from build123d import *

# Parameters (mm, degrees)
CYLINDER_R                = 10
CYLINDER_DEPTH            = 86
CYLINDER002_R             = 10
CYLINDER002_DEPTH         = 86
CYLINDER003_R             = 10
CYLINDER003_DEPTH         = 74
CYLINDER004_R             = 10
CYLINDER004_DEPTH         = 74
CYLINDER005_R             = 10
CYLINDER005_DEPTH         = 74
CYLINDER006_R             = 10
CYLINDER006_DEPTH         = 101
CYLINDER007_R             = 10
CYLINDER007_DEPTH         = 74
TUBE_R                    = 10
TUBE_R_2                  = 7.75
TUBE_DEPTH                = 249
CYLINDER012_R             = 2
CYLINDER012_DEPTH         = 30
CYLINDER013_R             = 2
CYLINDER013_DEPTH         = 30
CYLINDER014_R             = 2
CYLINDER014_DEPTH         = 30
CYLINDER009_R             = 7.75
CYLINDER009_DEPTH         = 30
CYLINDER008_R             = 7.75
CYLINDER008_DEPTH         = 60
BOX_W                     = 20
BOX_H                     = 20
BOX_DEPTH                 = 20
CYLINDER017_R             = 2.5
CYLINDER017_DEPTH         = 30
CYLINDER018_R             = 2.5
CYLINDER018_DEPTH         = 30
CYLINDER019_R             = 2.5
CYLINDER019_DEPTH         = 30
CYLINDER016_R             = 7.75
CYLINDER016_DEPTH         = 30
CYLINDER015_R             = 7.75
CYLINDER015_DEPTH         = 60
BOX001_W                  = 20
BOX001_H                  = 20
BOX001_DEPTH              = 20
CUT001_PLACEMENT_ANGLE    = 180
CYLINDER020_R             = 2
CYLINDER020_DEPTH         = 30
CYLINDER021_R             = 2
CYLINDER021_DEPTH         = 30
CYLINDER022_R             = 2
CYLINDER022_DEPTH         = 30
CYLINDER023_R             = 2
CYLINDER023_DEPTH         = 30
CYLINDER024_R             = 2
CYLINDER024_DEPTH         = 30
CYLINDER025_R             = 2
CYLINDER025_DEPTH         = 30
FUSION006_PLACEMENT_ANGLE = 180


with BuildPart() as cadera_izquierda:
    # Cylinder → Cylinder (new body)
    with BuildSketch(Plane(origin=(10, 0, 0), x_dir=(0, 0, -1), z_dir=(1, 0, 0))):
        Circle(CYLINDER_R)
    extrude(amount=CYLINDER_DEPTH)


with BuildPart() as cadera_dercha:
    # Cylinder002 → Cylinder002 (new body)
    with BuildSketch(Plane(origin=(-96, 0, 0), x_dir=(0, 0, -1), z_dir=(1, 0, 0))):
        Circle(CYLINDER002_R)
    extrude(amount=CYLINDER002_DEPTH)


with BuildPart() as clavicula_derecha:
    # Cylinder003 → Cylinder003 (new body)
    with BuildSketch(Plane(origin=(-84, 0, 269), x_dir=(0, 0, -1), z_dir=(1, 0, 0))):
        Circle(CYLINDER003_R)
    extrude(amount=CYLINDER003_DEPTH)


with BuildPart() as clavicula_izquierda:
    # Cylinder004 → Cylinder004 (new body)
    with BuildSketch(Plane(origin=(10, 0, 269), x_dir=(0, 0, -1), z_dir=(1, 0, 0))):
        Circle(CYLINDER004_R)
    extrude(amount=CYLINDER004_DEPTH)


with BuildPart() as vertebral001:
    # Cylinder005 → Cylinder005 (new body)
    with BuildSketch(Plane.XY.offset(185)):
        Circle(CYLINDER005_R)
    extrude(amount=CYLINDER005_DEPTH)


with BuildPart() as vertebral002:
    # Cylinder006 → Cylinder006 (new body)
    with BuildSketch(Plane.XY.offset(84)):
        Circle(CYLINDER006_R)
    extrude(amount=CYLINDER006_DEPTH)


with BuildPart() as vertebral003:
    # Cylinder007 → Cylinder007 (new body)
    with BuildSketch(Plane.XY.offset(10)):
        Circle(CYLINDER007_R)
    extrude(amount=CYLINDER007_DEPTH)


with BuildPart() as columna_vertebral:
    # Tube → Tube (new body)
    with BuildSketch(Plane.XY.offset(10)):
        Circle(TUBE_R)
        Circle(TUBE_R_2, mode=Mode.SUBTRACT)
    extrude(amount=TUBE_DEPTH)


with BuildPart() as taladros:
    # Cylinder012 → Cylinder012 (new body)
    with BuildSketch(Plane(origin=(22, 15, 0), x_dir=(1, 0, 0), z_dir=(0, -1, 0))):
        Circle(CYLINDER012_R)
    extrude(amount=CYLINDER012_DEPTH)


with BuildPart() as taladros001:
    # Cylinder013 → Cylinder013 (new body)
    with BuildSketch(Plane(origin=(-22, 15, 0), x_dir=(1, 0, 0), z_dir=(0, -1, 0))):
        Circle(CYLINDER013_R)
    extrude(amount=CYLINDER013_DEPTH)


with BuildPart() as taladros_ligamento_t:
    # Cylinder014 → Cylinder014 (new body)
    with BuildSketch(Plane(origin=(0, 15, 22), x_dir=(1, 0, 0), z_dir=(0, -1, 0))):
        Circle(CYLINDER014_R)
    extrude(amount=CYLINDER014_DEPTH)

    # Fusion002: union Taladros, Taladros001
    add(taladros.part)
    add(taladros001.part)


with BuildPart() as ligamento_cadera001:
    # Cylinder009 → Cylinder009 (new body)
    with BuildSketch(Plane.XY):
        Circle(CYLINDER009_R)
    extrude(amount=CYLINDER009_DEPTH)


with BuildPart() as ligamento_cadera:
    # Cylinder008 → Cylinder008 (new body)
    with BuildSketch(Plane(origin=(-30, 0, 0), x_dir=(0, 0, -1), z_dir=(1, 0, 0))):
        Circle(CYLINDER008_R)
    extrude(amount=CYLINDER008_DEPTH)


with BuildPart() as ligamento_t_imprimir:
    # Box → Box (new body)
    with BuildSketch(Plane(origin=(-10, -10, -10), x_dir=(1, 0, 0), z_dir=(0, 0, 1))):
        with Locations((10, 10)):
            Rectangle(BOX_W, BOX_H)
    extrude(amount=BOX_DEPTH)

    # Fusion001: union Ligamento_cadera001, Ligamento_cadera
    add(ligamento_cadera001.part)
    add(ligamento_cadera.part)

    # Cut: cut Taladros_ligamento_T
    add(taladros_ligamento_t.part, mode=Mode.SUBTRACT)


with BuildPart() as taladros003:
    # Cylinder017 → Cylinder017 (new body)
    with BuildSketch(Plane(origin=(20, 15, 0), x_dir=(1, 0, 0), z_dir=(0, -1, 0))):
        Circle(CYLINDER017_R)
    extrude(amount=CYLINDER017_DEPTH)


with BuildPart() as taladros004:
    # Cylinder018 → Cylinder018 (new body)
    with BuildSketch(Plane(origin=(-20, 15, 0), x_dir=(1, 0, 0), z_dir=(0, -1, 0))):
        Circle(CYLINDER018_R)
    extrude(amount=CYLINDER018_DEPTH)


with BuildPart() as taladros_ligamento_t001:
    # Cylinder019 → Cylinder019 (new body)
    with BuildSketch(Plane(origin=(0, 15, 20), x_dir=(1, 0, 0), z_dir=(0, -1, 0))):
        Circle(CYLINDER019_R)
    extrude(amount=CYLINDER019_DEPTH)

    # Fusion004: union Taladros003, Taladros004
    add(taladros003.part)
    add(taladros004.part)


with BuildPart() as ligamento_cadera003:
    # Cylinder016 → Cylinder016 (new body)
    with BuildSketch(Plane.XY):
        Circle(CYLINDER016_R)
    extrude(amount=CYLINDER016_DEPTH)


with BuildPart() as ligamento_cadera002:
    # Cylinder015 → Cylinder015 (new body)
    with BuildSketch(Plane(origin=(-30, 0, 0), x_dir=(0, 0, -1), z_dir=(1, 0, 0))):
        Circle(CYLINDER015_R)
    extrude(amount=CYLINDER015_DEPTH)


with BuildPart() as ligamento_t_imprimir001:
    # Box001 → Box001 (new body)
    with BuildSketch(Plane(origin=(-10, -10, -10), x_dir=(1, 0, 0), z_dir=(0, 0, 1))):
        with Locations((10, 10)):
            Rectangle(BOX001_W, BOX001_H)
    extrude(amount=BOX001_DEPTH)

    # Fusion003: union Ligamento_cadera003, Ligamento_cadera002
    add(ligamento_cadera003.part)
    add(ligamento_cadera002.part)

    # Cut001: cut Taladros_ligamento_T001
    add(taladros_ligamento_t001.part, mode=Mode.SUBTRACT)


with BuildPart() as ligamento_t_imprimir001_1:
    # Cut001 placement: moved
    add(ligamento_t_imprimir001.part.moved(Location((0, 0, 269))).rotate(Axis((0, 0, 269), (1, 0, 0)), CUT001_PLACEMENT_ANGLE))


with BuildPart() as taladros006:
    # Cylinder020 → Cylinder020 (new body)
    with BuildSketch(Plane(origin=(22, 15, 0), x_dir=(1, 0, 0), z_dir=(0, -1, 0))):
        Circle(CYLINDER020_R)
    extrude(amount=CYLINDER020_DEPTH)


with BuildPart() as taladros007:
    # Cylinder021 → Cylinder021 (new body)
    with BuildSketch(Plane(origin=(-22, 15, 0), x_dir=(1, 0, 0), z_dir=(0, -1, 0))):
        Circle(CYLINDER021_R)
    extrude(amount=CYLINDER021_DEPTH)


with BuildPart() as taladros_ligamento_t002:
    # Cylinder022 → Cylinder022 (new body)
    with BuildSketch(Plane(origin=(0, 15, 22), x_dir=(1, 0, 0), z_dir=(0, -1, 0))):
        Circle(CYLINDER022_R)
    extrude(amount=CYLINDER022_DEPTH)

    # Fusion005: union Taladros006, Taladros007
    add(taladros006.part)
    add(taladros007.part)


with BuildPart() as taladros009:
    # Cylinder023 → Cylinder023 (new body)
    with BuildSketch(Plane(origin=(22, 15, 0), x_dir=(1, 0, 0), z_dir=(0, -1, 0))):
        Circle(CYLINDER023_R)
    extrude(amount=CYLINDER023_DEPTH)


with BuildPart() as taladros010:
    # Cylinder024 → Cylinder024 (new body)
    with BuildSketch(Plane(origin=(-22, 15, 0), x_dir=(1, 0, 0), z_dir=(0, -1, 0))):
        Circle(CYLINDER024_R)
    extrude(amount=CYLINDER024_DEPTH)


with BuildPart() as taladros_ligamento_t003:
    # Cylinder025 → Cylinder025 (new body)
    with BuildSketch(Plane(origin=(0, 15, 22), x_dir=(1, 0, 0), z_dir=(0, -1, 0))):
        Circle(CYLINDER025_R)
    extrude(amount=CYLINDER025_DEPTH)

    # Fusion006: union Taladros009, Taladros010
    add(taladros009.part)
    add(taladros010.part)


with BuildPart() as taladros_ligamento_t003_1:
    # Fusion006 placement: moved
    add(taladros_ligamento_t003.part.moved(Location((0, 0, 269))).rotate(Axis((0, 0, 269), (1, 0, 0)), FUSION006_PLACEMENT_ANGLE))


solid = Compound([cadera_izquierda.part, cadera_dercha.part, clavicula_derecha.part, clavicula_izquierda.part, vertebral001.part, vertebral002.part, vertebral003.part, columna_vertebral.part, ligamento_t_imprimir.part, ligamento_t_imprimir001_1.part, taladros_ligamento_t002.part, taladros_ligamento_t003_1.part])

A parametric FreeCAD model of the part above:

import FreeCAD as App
import Part
import Sketcher

V = App.Vector
Q = App.Units.Quantity

doc = App.newDocument("Part")
body = doc.addObject("PartDesign::Body", "Body")

# Sketch on YZ plane
sketch1 = body.newObject("Sketcher::SketchObject", "Sketch")
sketch1.AttachmentSupport = (doc.getObject("YZ_Plane"), [""])
sketch1.MapMode = "FlatFace"
sketch1.AttachmentOffset = App.Placement(V(0, 0, 10), App.Rotation())
sketch1.addGeometry(Part.Circle(V(0, 0, 0), V(0, 0, 1), 10), False)
sketch1.addConstraint(Sketcher.Constraint("Coincident", 0, 3, -1, 1))
sketch1.addConstraint(Sketcher.Constraint("Diameter", 0, Q("20 mm")))
pad1 = body.newObject("PartDesign::Pad", "Pad")
pad1.Profile = sketch1
pad1.Length = 86
body2 = doc.addObject("PartDesign::Body", "Body001")

# Sketch on YZ plane
sketch2 = body2.newObject("Sketcher::SketchObject", "Sketch001")
sketch2.AttachmentSupport = (doc.getObject("YZ_Plane001"), [""])
sketch2.MapMode = "FlatFace"
sketch2.AttachmentOffset = App.Placement(V(0, 0, -96), App.Rotation())
sketch2.addGeometry(Part.Circle(V(0, 0, 0), V(0, 0, 1), 10), False)
sketch2.addConstraint(Sketcher.Constraint("Coincident", 0, 3, -1, 1))
sketch2.addConstraint(Sketcher.Constraint("Diameter", 0, Q("20 mm")))
pad2 = body2.newObject("PartDesign::Pad", "Pad001")
pad2.Profile = sketch2
pad2.Length = 86
body3 = doc.addObject("PartDesign::Body", "Body002")

# Sketch on YZ plane
sketch3 = body3.newObject("Sketcher::SketchObject", "Sketch002")
sketch3.AttachmentSupport = (doc.getObject("YZ_Plane002"), [""])
sketch3.MapMode = "FlatFace"
sketch3.AttachmentOffset = App.Placement(V(0, 0, -84), App.Rotation())
sketch3.addGeometry(Part.Circle(V(0, 269, 0), V(0, 0, 1), 10), False)
sketch3.addConstraint(Sketcher.Constraint("PointOnObject", 0, 3, -2))
sketch3.addConstraint(Sketcher.Constraint("Diameter", 0, Q("20 mm")))
sketch3.addConstraint(Sketcher.Constraint("DistanceY", -1, 1, 0, 3, Q("269 mm")))
pad3 = body3.newObject("PartDesign::Pad", "Pad002")
pad3.Profile = sketch3
pad3.Length = 74
body4 = doc.addObject("PartDesign::Body", "Body003")

# Sketch on YZ plane
sketch4 = body4.newObject("Sketcher::SketchObject", "Sketch003")
sketch4.AttachmentSupport = (doc.getObject("YZ_Plane003"), [""])
sketch4.MapMode = "FlatFace"
sketch4.AttachmentOffset = App.Placement(V(0, 0, 10), App.Rotation())
sketch4.addGeometry(Part.Circle(V(0, 269, 0), V(0, 0, 1), 10), False)
sketch4.addConstraint(Sketcher.Constraint("PointOnObject", 0, 3, -2))
sketch4.addConstraint(Sketcher.Constraint("Diameter", 0, Q("20 mm")))
sketch4.addConstraint(Sketcher.Constraint("DistanceY", -1, 1, 0, 3, Q("269 mm")))
pad4 = body4.newObject("PartDesign::Pad", "Pad003")
pad4.Profile = sketch4
pad4.Length = 74
body5 = doc.addObject("PartDesign::Body", "Body004")

# Sketch on XY plane
sketch5 = body5.newObject("Sketcher::SketchObject", "Sketch004")
sketch5.AttachmentSupport = (doc.getObject("XY_Plane004"), [""])
sketch5.MapMode = "FlatFace"
sketch5.AttachmentOffset = App.Placement(V(0, 0, 185), App.Rotation())
sketch5.addGeometry(Part.Circle(V(0, 0, 0), V(0, 0, 1), 10), False)
sketch5.addConstraint(Sketcher.Constraint("Coincident", 0, 3, -1, 1))
sketch5.addConstraint(Sketcher.Constraint("Diameter", 0, Q("20 mm")))
pad5 = body5.newObject("PartDesign::Pad", "Pad004")
pad5.Profile = sketch5
pad5.Length = 74
body6 = doc.addObject("PartDesign::Body", "Body005")

# Sketch on XY plane
sketch6 = body6.newObject("Sketcher::SketchObject", "Sketch005")
sketch6.AttachmentSupport = (doc.getObject("XY_Plane005"), [""])
sketch6.MapMode = "FlatFace"
sketch6.AttachmentOffset = App.Placement(V(0, 0, 84), App.Rotation())
sketch6.addGeometry(Part.Circle(V(0, 0, 0), V(0, 0, 1), 10), False)
sketch6.addConstraint(Sketcher.Constraint("Coincident", 0, 3, -1, 1))
sketch6.addConstraint(Sketcher.Constraint("Diameter", 0, Q("20 mm")))
pad6 = body6.newObject("PartDesign::Pad", "Pad005")
pad6.Profile = sketch6
pad6.Length = 101
body7 = doc.addObject("PartDesign::Body", "Body006")

# Sketch on XY plane
sketch7 = body7.newObject("Sketcher::SketchObject", "Sketch006")
sketch7.AttachmentSupport = (doc.getObject("XY_Plane006"), [""])
sketch7.MapMode = "FlatFace"
sketch7.AttachmentOffset = App.Placement(V(0, 0, 10), App.Rotation())
sketch7.addGeometry(Part.Circle(V(0, 0, 0), V(0, 0, 1), 10), False)
sketch7.addConstraint(Sketcher.Constraint("Coincident", 0, 3, -1, 1))
sketch7.addConstraint(Sketcher.Constraint("Diameter", 0, Q("20 mm")))
pad7 = body7.newObject("PartDesign::Pad", "Pad006")
pad7.Profile = sketch7
pad7.Length = 74
body8 = doc.addObject("PartDesign::Body", "Body007")

# Sketch on XY plane
sketch8 = body8.newObject("Sketcher::SketchObject", "Sketch007")
sketch8.AttachmentSupport = (doc.getObject("XY_Plane007"), [""])
sketch8.MapMode = "FlatFace"
sketch8.AttachmentOffset = App.Placement(V(0, 0, 10), App.Rotation())
sketch8.addGeometry(Part.Circle(V(0, 0, 0), V(0, 0, 1), 10), False)
sketch8.addGeometry(Part.Circle(V(0, 0, 0), V(0, 0, 1), 8), False)
sketch8.addConstraint(Sketcher.Constraint("Coincident", 0, 3, -1, 1))
sketch8.addConstraint(Sketcher.Constraint("Coincident", 1, 3, -1, 1))
sketch8.addConstraint(Sketcher.Constraint("Diameter", 0, Q("20 mm")))
sketch8.addConstraint(Sketcher.Constraint("Diameter", 1, Q("15.5 mm")))
pad8 = body8.newObject("PartDesign::Pad", "Pad007")
pad8.Profile = sketch8
pad8.Length = 249
body9 = doc.addObject("PartDesign::Body", "Body008")

# Sketch on XZ plane
sketch9 = body9.newObject("Sketcher::SketchObject", "Sketch008")
sketch9.AttachmentSupport = (doc.getObject("XZ_Plane008"), [""])
sketch9.MapMode = "FlatFace"
sketch9.AttachmentOffset = App.Placement(V(0, 0, -15), App.Rotation())
sketch9.addGeometry(Part.Circle(V(22, 0, 0), V(0, 0, 1), 2), False)
sketch9.addConstraint(Sketcher.Constraint("PointOnObject", 0, 3, -1))
sketch9.addConstraint(Sketcher.Constraint("Diameter", 0, Q("4 mm")))
sketch9.addConstraint(Sketcher.Constraint("DistanceX", -1, 1, 0, 3, Q("22 mm")))
pad9 = body9.newObject("PartDesign::Pad", "Pad008")
pad9.Profile = sketch9
pad9.Length = 30
body10 = doc.addObject("PartDesign::Body", "Body009")

# Sketch on XZ plane
sketch10 = body10.newObject("Sketcher::SketchObject", "Sketch009")
sketch10.AttachmentSupport = (doc.getObject("XZ_Plane009"), [""])
sketch10.MapMode = "FlatFace"
sketch10.AttachmentOffset = App.Placement(V(0, 0, -15), App.Rotation())
sketch10.addGeometry(Part.Circle(V(-22, 0, 0), V(0, 0, 1), 2), False)
sketch10.addConstraint(Sketcher.Constraint("PointOnObject", 0, 3, -1))
sketch10.addConstraint(Sketcher.Constraint("Diameter", 0, Q("4 mm")))
sketch10.addConstraint(Sketcher.Constraint("DistanceX", 0, 3, -1, 1, Q("22 mm")))
pad10 = body10.newObject("PartDesign::Pad", "Pad009")
pad10.Profile = sketch10
pad10.Length = 30
body11 = doc.addObject("PartDesign::Body", "Body010")
body11.AllowCompound = True

# Sketch on XZ plane
sketch11 = body11.newObject("Sketcher::SketchObject", "Sketch010")
sketch11.AttachmentSupport = (doc.getObject("XZ_Plane010"), [""])
sketch11.MapMode = "FlatFace"
sketch11.AttachmentOffset = App.Placement(V(0, 0, -15), App.Rotation())
sketch11.addGeometry(Part.Circle(V(0, 22, 0), V(0, 0, 1), 2), False)
sketch11.addConstraint(Sketcher.Constraint("PointOnObject", 0, 3, -2))
sketch11.addConstraint(Sketcher.Constraint("Diameter", 0, Q("4 mm")))
sketch11.addConstraint(Sketcher.Constraint("DistanceY", -1, 1, 0, 3, Q("22 mm")))
pad11 = body11.newObject("PartDesign::Pad", "Pad010")
pad11.Profile = sketch11
pad11.Length = 30
doc.recompute()

boolean = body11.newObject("PartDesign::Boolean", "Boolean")
boolean.Type = "Fuse"
boolean.addObjects([body9])
doc.recompute()

boolean2 = body11.newObject("PartDesign::Boolean", "Boolean001")
boolean2.Type = "Fuse"
boolean2.addObjects([body10])
body12 = doc.addObject("PartDesign::Body", "Body011")

# Sketch on XY plane
sketch12 = body12.newObject("Sketcher::SketchObject", "Sketch011")
sketch12.AttachmentSupport = (doc.getObject("XY_Plane011"), [""])
sketch12.MapMode = "FlatFace"
sketch12.addGeometry(Part.Circle(V(0, 0, 0), V(0, 0, 1), 8), False)
sketch12.addConstraint(Sketcher.Constraint("Coincident", 0, 3, -1, 1))
sketch12.addConstraint(Sketcher.Constraint("Diameter", 0, Q("15.5 mm")))
pad12 = body12.newObject("PartDesign::Pad", "Pad011")
pad12.Profile = sketch12
pad12.Length = 30
body13 = doc.addObject("PartDesign::Body", "Body012")

# Sketch on YZ plane
sketch13 = body13.newObject("Sketcher::SketchObject", "Sketch012")
sketch13.AttachmentSupport = (doc.getObject("YZ_Plane012"), [""])
sketch13.MapMode = "FlatFace"
sketch13.AttachmentOffset = App.Placement(V(0, 0, -30), App.Rotation())
sketch13.addGeometry(Part.Circle(V(0, 0, 0), V(0, 0, 1), 8), False)
sketch13.addConstraint(Sketcher.Constraint("Coincident", 0, 3, -1, 1))
sketch13.addConstraint(Sketcher.Constraint("Diameter", 0, Q("15.5 mm")))
pad13 = body13.newObject("PartDesign::Pad", "Pad012")
pad13.Profile = sketch13
pad13.Length = 60
body14 = doc.addObject("PartDesign::Body", "Body013")

# Sketch on XY plane
sketch14 = body14.newObject("Sketcher::SketchObject", "Sketch013")
sketch14.AttachmentSupport = (doc.getObject("XY_Plane013"), [""])
sketch14.MapMode = "FlatFace"
sketch14.AttachmentOffset = App.Placement(V(0, 0, -10), App.Rotation())
sketch14.addGeometry(Part.LineSegment(V(-10, 10, 0), V(-10, -10, 0)), False)
sketch14.addGeometry(Part.LineSegment(V(-10, -10, 0), V(10, -10, 0)), False)
sketch14.addGeometry(Part.LineSegment(V(10, -10, 0), V(10, 10, 0)), False)
sketch14.addGeometry(Part.LineSegment(V(10, 10, 0), V(-10, 10, 0)), False)
sketch14.addConstraint(Sketcher.Constraint("Coincident", 0, 2, 1, 1))
sketch14.addConstraint(Sketcher.Constraint("Coincident", 1, 2, 2, 1))
sketch14.addConstraint(Sketcher.Constraint("Coincident", 2, 2, 3, 1))
sketch14.addConstraint(Sketcher.Constraint("Coincident", 3, 2, 0, 1))
sketch14.addConstraint(Sketcher.Constraint("Vertical", 0))
sketch14.addConstraint(Sketcher.Constraint("Horizontal", 1))
sketch14.addConstraint(Sketcher.Constraint("Vertical", 2))
sketch14.addConstraint(Sketcher.Constraint("Horizontal", 3))
sketch14.addConstraint(Sketcher.Constraint("Symmetric", 0, 2, 2, 2, -1, 1))
sketch14.addConstraint(Sketcher.Constraint("Equal", 3, 0))
sketch14.addConstraint(Sketcher.Constraint("DistanceX", 1, 1, 1, 2, Q("20 mm")))
pad14 = body14.newObject("PartDesign::Pad", "Pad013")
pad14.Profile = sketch14
pad14.Length = 20
doc.recompute()

boolean3 = body14.newObject("PartDesign::Boolean", "Boolean002")
boolean3.Type = "Fuse"
boolean3.addObjects([body12])
doc.recompute()

boolean4 = body14.newObject("PartDesign::Boolean", "Boolean003")
boolean4.Type = "Fuse"
boolean4.addObjects([body13])
doc.recompute()

boolean5 = body14.newObject("PartDesign::Boolean", "Boolean004")
boolean5.Type = "Cut"
boolean5.addObjects([body11])
body15 = doc.addObject("PartDesign::Body", "Body014")

# Sketch on XZ plane
sketch15 = body15.newObject("Sketcher::SketchObject", "Sketch014")
sketch15.AttachmentSupport = (doc.getObject("XZ_Plane014"), [""])
sketch15.MapMode = "FlatFace"
sketch15.AttachmentOffset = App.Placement(V(0, 0, -15), App.Rotation())
sketch15.addGeometry(Part.Circle(V(20, 0, 0), V(0, 0, 1), 2.5), False)
sketch15.addConstraint(Sketcher.Constraint("PointOnObject", 0, 3, -1))
sketch15.addConstraint(Sketcher.Constraint("Diameter", 0, Q("5 mm")))
sketch15.addConstraint(Sketcher.Constraint("DistanceX", -1, 1, 0, 3, Q("20 mm")))
pad15 = body15.newObject("PartDesign::Pad", "Pad014")
pad15.Profile = sketch15
pad15.Length = 30
body16 = doc.addObject("PartDesign::Body", "Body015")

# Sketch on XZ plane
sketch16 = body16.newObject("Sketcher::SketchObject", "Sketch015")
sketch16.AttachmentSupport = (doc.getObject("XZ_Plane015"), [""])
sketch16.MapMode = "FlatFace"
sketch16.AttachmentOffset = App.Placement(V(0, 0, -15), App.Rotation())
sketch16.addGeometry(Part.Circle(V(-20, 0, 0), V(0, 0, 1), 2.5), False)
sketch16.addConstraint(Sketcher.Constraint("PointOnObject", 0, 3, -1))
sketch16.addConstraint(Sketcher.Constraint("Diameter", 0, Q("5 mm")))
sketch16.addConstraint(Sketcher.Constraint("DistanceX", 0, 3, -1, 1, Q("20 mm")))
pad16 = body16.newObject("PartDesign::Pad", "Pad015")
pad16.Profile = sketch16
pad16.Length = 30
body17 = doc.addObject("PartDesign::Body", "Body016")
body17.AllowCompound = True

# Sketch on XZ plane
sketch17 = body17.newObject("Sketcher::SketchObject", "Sketch016")
sketch17.AttachmentSupport = (doc.getObject("XZ_Plane016"), [""])
sketch17.MapMode = "FlatFace"
sketch17.AttachmentOffset = App.Placement(V(0, 0, -15), App.Rotation())
sketch17.addGeometry(Part.Circle(V(0, 20, 0), V(0, 0, 1), 2.5), False)
sketch17.addConstraint(Sketcher.Constraint("PointOnObject", 0, 3, -2))
sketch17.addConstraint(Sketcher.Constraint("Diameter", 0, Q("5 mm")))
sketch17.addConstraint(Sketcher.Constraint("DistanceY", -1, 1, 0, 3, Q("20 mm")))
pad17 = body17.newObject("PartDesign::Pad", "Pad016")
pad17.Profile = sketch17
pad17.Length = 30
doc.recompute()

boolean6 = body17.newObject("PartDesign::Boolean", "Boolean005")
boolean6.Type = "Fuse"
boolean6.addObjects([body15])
doc.recompute()

boolean7 = body17.newObject("PartDesign::Boolean", "Boolean006")
boolean7.Type = "Fuse"
boolean7.addObjects([body16])
body18 = doc.addObject("PartDesign::Body", "Body017")

# Sketch on XY plane
sketch18 = body18.newObject("Sketcher::SketchObject", "Sketch017")
sketch18.AttachmentSupport = (doc.getObject("XY_Plane017"), [""])
sketch18.MapMode = "FlatFace"
sketch18.addGeometry(Part.Circle(V(0, 0, 0), V(0, 0, 1), 8), False)
sketch18.addConstraint(Sketcher.Constraint("Coincident", 0, 3, -1, 1))
sketch18.addConstraint(Sketcher.Constraint("Diameter", 0, Q("15.5 mm")))
pad18 = body18.newObject("PartDesign::Pad", "Pad017")
pad18.Profile = sketch18
pad18.Length = 30
body19 = doc.addObject("PartDesign::Body", "Body018")

# Sketch on YZ plane
sketch19 = body19.newObject("Sketcher::SketchObject", "Sketch018")
sketch19.AttachmentSupport = (doc.getObject("YZ_Plane018"), [""])
sketch19.MapMode = "FlatFace"
sketch19.AttachmentOffset = App.Placement(V(0, 0, -30), App.Rotation())
sketch19.addGeometry(Part.Circle(V(0, 0, 0), V(0, 0, 1), 8), False)
sketch19.addConstraint(Sketcher.Constraint("Coincident", 0, 3, -1, 1))
sketch19.addConstraint(Sketcher.Constraint("Diameter", 0, Q("15.5 mm")))
pad19 = body19.newObject("PartDesign::Pad", "Pad018")
pad19.Profile = sketch19
pad19.Length = 60
body20 = doc.addObject("PartDesign::Body", "Body019")

# Sketch on XY plane
sketch20 = body20.newObject("Sketcher::SketchObject", "Sketch019")
sketch20.AttachmentSupport = (doc.getObject("XY_Plane019"), [""])
sketch20.MapMode = "FlatFace"
sketch20.AttachmentOffset = App.Placement(V(0, 0, -10), App.Rotation())
sketch20.addGeometry(Part.LineSegment(V(-10, 10, 0), V(-10, -10, 0)), False)
sketch20.addGeometry(Part.LineSegment(V(-10, -10, 0), V(10, -10, 0)), False)
sketch20.addGeometry(Part.LineSegment(V(10, -10, 0), V(10, 10, 0)), False)
sketch20.addGeometry(Part.LineSegment(V(10, 10, 0), V(-10, 10, 0)), False)
sketch20.addConstraint(Sketcher.Constraint("Coincident", 0, 2, 1, 1))
sketch20.addConstraint(Sketcher.Constraint("Coincident", 1, 2, 2, 1))
sketch20.addConstraint(Sketcher.Constraint("Coincident", 2, 2, 3, 1))
sketch20.addConstraint(Sketcher.Constraint("Coincident", 3, 2, 0, 1))
sketch20.addConstraint(Sketcher.Constraint("Vertical", 0))
sketch20.addConstraint(Sketcher.Constraint("Horizontal", 1))
sketch20.addConstraint(Sketcher.Constraint("Vertical", 2))
sketch20.addConstraint(Sketcher.Constraint("Horizontal", 3))
sketch20.addConstraint(Sketcher.Constraint("Symmetric", 0, 2, 2, 2, -1, 1))
sketch20.addConstraint(Sketcher.Constraint("Equal", 3, 0))
sketch20.addConstraint(Sketcher.Constraint("DistanceX", 1, 1, 1, 2, Q("20 mm")))
pad20 = body20.newObject("PartDesign::Pad", "Pad019")
pad20.Profile = sketch20
pad20.Length = 20
doc.recompute()

boolean8 = body20.newObject("PartDesign::Boolean", "Boolean007")
boolean8.Type = "Fuse"
boolean8.addObjects([body18])
doc.recompute()

boolean9 = body20.newObject("PartDesign::Boolean", "Boolean008")
boolean9.Type = "Fuse"
boolean9.addObjects([body19])
doc.recompute()

boolean10 = body20.newObject("PartDesign::Boolean", "Boolean009")
boolean10.Type = "Cut"
boolean10.addObjects([body17])
body21 = doc.addObject("PartDesign::Body", "Body020")
doc.recompute()

body20.Placement = App.Placement(V(0, 0, 269), App.Rotation(V(1, 0, 0), 180))
boolean11 = body21.newObject("PartDesign::Boolean", "Boolean010")
boolean11.Type = "Fuse"
boolean11.addObjects([body20])
body22 = doc.addObject("PartDesign::Body", "Body021")

# Sketch on XZ plane
sketch21 = body22.newObject("Sketcher::SketchObject", "Sketch020")
sketch21.AttachmentSupport = (doc.getObject("XZ_Plane021"), [""])
sketch21.MapMode = "FlatFace"
sketch21.AttachmentOffset = App.Placement(V(0, 0, -15), App.Rotation())
sketch21.addGeometry(Part.Circle(V(22, 0, 0), V(0, 0, 1), 2), False)
sketch21.addConstraint(Sketcher.Constraint("PointOnObject", 0, 3, -1))
sketch21.addConstraint(Sketcher.Constraint("Diameter", 0, Q("4 mm")))
sketch21.addConstraint(Sketcher.Constraint("DistanceX", -1, 1, 0, 3, Q("22 mm")))
pad21 = body22.newObject("PartDesign::Pad", "Pad020")
pad21.Profile = sketch21
pad21.Length = 30
body23 = doc.addObject("PartDesign::Body", "Body022")

# Sketch on XZ plane
sketch22 = body23.newObject("Sketcher::SketchObject", "Sketch021")
sketch22.AttachmentSupport = (doc.getObject("XZ_Plane022"), [""])
sketch22.MapMode = "FlatFace"
sketch22.AttachmentOffset = App.Placement(V(0, 0, -15), App.Rotation())
sketch22.addGeometry(Part.Circle(V(-22, 0, 0), V(0, 0, 1), 2), False)
sketch22.addConstraint(Sketcher.Constraint("PointOnObject", 0, 3, -1))
sketch22.addConstraint(Sketcher.Constraint("Diameter", 0, Q("4 mm")))
sketch22.addConstraint(Sketcher.Constraint("DistanceX", 0, 3, -1, 1, Q("22 mm")))
pad22 = body23.newObject("PartDesign::Pad", "Pad021")
pad22.Profile = sketch22
pad22.Length = 30
body24 = doc.addObject("PartDesign::Body", "Body023")
body24.AllowCompound = True

# Sketch on XZ plane
sketch23 = body24.newObject("Sketcher::SketchObject", "Sketch022")
sketch23.AttachmentSupport = (doc.getObject("XZ_Plane023"), [""])
sketch23.MapMode = "FlatFace"
sketch23.AttachmentOffset = App.Placement(V(0, 0, -15), App.Rotation())
sketch23.addGeometry(Part.Circle(V(0, 22, 0), V(0, 0, 1), 2), False)
sketch23.addConstraint(Sketcher.Constraint("PointOnObject", 0, 3, -2))
sketch23.addConstraint(Sketcher.Constraint("Diameter", 0, Q("4 mm")))
sketch23.addConstraint(Sketcher.Constraint("DistanceY", -1, 1, 0, 3, Q("22 mm")))
pad23 = body24.newObject("PartDesign::Pad", "Pad022")
pad23.Profile = sketch23
pad23.Length = 30
doc.recompute()

boolean12 = body24.newObject("PartDesign::Boolean", "Boolean011")
boolean12.Type = "Fuse"
boolean12.addObjects([body22])
doc.recompute()

boolean13 = body24.newObject("PartDesign::Boolean", "Boolean012")
boolean13.Type = "Fuse"
boolean13.addObjects([body23])
body25 = doc.addObject("PartDesign::Body", "Body024")

# Sketch on XZ plane
sketch24 = body25.newObject("Sketcher::SketchObject", "Sketch023")
sketch24.AttachmentSupport = (doc.getObject("XZ_Plane024"), [""])
sketch24.MapMode = "FlatFace"
sketch24.AttachmentOffset = App.Placement(V(0, 0, -15), App.Rotation())
sketch24.addGeometry(Part.Circle(V(22, 0, 0), V(0, 0, 1), 2), False)
sketch24.addConstraint(Sketcher.Constraint("PointOnObject", 0, 3, -1))
sketch24.addConstraint(Sketcher.Constraint("Diameter", 0, Q("4 mm")))
sketch24.addConstraint(Sketcher.Constraint("DistanceX", -1, 1, 0, 3, Q("22 mm")))
pad24 = body25.newObject("PartDesign::Pad", "Pad023")
pad24.Profile = sketch24
pad24.Length = 30
body26 = doc.addObject("PartDesign::Body", "Body025")

# Sketch on XZ plane
sketch25 = body26.newObject("Sketcher::SketchObject", "Sketch024")
sketch25.AttachmentSupport = (doc.getObject("XZ_Plane025"), [""])
sketch25.MapMode = "FlatFace"
sketch25.AttachmentOffset = App.Placement(V(0, 0, -15), App.Rotation())
sketch25.addGeometry(Part.Circle(V(-22, 0, 0), V(0, 0, 1), 2), False)
sketch25.addConstraint(Sketcher.Constraint("PointOnObject", 0, 3, -1))
sketch25.addConstraint(Sketcher.Constraint("Diameter", 0, Q("4 mm")))
sketch25.addConstraint(Sketcher.Constraint("DistanceX", 0, 3, -1, 1, Q("22 mm")))
pad25 = body26.newObject("PartDesign::Pad", "Pad024")
pad25.Profile = sketch25
pad25.Length = 30
body27 = doc.addObject("PartDesign::Body", "Body026")
body27.AllowCompound = True

# Sketch on XZ plane
sketch26 = body27.newObject("Sketcher::SketchObject", "Sketch025")
sketch26.AttachmentSupport = (doc.getObject("XZ_Plane026"), [""])
sketch26.MapMode = "FlatFace"
sketch26.AttachmentOffset = App.Placement(V(0, 0, -15), App.Rotation())
sketch26.addGeometry(Part.Circle(V(0, 22, 0), V(0, 0, 1), 2), False)
sketch26.addConstraint(Sketcher.Constraint("PointOnObject", 0, 3, -2))
sketch26.addConstraint(Sketcher.Constraint("Diameter", 0, Q("4 mm")))
sketch26.addConstraint(Sketcher.Constraint("DistanceY", -1, 1, 0, 3, Q("22 mm")))
pad26 = body27.newObject("PartDesign::Pad", "Pad025")
pad26.Profile = sketch26
pad26.Length = 30
doc.recompute()

boolean14 = body27.newObject("PartDesign::Boolean", "Boolean013")
boolean14.Type = "Fuse"
boolean14.addObjects([body25])
doc.recompute()

boolean15 = body27.newObject("PartDesign::Boolean", "Boolean014")
boolean15.Type = "Fuse"
boolean15.addObjects([body26])
body28 = doc.addObject("PartDesign::Body", "Body027")
body28.AllowCompound = True
doc.recompute()

body27.Placement = App.Placement(V(0, 0, 269), App.Rotation(V(1, 0, 0), 180))
boolean16 = body28.newObject("PartDesign::Boolean", "Boolean015")
boolean16.Type = "Fuse"
boolean16.addObjects([body27])

doc.recompute()
